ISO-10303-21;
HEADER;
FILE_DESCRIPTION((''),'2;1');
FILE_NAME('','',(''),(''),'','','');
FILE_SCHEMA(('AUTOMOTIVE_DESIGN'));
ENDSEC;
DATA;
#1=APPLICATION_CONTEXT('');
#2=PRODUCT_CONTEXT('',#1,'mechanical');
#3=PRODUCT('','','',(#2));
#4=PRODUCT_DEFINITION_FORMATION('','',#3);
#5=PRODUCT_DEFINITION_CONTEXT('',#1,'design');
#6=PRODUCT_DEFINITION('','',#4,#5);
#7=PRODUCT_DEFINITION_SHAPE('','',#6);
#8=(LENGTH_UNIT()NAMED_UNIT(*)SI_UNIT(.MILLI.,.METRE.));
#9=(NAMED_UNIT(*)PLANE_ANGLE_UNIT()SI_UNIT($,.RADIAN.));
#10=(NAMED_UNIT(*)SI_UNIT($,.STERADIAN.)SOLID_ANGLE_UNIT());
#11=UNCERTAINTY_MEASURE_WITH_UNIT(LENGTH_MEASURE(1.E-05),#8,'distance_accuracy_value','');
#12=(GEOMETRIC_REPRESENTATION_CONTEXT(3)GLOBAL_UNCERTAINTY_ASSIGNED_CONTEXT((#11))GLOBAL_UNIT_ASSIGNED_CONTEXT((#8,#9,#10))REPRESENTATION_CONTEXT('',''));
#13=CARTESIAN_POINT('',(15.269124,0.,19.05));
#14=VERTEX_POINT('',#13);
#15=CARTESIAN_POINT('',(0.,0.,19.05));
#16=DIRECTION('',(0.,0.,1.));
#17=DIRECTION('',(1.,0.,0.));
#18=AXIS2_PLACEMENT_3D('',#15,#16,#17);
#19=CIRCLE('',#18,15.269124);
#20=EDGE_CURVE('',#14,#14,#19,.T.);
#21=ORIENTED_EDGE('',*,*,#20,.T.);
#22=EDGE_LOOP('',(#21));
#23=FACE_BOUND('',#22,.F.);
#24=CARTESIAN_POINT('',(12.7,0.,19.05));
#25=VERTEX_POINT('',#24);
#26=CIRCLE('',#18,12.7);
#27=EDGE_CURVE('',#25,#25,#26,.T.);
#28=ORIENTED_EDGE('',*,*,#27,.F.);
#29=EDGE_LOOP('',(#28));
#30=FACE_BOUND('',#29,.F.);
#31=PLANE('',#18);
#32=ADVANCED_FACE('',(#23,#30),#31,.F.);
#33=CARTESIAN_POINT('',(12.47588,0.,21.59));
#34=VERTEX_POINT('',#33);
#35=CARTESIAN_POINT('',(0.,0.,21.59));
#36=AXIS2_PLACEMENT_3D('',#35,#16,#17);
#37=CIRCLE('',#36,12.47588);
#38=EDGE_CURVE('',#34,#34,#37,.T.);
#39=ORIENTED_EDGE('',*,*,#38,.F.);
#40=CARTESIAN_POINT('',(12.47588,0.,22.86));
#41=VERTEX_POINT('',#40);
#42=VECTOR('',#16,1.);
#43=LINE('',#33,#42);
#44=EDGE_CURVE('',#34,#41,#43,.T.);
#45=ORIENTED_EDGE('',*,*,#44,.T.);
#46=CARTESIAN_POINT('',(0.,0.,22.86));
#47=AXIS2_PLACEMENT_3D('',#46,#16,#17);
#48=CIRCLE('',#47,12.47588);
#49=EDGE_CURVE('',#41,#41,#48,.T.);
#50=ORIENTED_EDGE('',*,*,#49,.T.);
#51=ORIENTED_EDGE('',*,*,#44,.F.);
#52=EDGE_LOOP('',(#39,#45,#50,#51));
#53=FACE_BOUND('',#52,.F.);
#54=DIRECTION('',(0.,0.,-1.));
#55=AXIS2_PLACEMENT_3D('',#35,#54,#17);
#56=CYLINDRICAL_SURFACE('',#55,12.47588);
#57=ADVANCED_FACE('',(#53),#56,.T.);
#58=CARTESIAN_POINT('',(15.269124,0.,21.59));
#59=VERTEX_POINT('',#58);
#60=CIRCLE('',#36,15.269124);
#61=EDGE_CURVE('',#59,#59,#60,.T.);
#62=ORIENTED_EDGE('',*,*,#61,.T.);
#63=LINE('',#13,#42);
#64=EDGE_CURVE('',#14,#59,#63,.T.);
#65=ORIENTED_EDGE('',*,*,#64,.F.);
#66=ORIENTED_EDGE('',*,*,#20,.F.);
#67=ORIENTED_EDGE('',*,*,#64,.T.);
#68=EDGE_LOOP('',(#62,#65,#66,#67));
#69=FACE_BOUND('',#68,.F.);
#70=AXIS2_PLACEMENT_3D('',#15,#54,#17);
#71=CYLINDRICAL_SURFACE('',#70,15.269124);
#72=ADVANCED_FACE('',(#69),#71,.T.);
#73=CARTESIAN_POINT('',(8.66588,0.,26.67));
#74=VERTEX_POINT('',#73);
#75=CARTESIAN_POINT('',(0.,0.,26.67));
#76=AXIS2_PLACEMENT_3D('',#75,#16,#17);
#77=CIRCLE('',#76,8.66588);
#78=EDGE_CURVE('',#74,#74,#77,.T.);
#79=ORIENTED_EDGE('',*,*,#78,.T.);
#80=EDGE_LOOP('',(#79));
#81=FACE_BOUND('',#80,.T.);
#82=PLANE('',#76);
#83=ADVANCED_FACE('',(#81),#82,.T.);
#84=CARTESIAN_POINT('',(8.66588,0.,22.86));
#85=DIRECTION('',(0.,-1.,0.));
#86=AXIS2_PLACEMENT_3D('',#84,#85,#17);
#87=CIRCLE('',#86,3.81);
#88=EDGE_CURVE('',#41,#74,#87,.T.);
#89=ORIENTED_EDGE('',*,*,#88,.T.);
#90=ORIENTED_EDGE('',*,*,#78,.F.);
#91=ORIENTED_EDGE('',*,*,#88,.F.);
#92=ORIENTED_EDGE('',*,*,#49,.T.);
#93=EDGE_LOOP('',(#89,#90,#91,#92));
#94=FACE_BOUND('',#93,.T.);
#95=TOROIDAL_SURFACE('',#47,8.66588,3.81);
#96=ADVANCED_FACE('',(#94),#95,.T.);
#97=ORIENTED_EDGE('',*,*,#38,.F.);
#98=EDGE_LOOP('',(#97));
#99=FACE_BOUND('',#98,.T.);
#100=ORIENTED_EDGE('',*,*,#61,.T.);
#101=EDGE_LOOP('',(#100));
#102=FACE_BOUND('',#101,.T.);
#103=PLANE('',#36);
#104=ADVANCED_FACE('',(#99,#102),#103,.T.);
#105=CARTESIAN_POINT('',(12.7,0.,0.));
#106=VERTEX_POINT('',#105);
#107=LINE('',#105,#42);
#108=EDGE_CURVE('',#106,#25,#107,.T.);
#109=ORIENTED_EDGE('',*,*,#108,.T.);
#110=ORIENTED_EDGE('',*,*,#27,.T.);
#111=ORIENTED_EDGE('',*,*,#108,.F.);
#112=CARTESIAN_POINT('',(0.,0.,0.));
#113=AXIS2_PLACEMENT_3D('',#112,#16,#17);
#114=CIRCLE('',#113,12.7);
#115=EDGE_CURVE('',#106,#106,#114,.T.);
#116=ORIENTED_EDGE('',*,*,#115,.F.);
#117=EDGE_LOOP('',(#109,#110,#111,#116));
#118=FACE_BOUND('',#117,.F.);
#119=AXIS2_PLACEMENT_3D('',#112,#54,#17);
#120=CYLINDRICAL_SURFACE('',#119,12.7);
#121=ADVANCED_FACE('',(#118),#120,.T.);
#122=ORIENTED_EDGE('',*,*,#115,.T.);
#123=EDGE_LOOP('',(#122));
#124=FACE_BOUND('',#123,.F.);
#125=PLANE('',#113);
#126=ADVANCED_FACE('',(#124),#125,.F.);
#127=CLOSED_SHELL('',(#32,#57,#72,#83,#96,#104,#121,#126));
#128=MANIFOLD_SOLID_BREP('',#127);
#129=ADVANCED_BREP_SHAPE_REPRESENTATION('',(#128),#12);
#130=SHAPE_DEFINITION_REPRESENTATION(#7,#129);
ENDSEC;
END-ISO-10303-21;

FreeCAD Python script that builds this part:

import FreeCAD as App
import Part
import Sketcher
Q = App.Units.Quantity


def edges_at(feature, points):
    """Names of the edges that pass closest to the given points."""
    edges = feature.Shape.Edges
    near = lambda p: min(range(len(edges)), key=lambda i: edges[i].distToShape(Part.Vertex(*p))[0])
    return sorted({f"Edge{near(p) + 1}" for p in points})

doc = App.newDocument("Part")
params = doc.addObject("Spreadsheet::Sheet", "Params")
for row, (alias, value) in enumerate([
    ("sketch1_diameter", "1 in"),
    ("pad1_length", "0.75 in"),
    ("pad2_length", "0.1 in"),
    ("pad3_length", "0.2 in"),
    ("fillet_radius", "0.15 in"),
], start=1):
    params.set(f"A{row}", alias)
    params.set(f"B{row}", "=" + value)
    params.setAlias(f"B{row}", alias)

body = doc.addObject("PartDesign::Body", "Body")

# Sketch on XY plane
sketch1 = body.newObject("Sketcher::SketchObject", "Sketch")
sketch1.AttachmentSupport = (doc.getObject("XY_Plane"), [""])
sketch1.MapMode = "FlatFace"
sketch1.addGeometry(Part.Circle(App.Vector(0, 0, 0), App.Vector(0, 0, 1), 13), False)
sketch1.addConstraint([
    Sketcher.Constraint("Coincident", 0, 3, -1, 1),
    Sketcher.Constraint("Diameter", 0, Q("1 in")),
])
sketch1.setExpression("Constraints[1]", "Params.sketch1_diameter")
pad1 = body.newObject("PartDesign::Pad", "Pad")
pad1.Profile = sketch1
pad1.setExpression("Length", "Params.pad1_length")

# Sketch on XY plane
sketch2 = body.newObject("Sketcher::SketchObject", "Sketch001")
sketch2.AttachmentSupport = (doc.getObject("XY_Plane"), [""])
sketch2.MapMode = "FlatFace"
sketch2.AttachmentOffset = App.Placement(App.Vector(0, 0, 0.75 * 25.4), App.Rotation())
sketch2.addGeometry(Part.Circle(App.Vector(0, 0, 0), App.Vector(0, 0, 1), 15), False)
sketch2.addConstraint([
    Sketcher.Constraint("Coincident", 0, 3, -1, 1),
    Sketcher.Constraint("Diameter", 0, 30.538249),
])
pad2 = body.newObject("PartDesign::Pad", "Pad001")
pad2.Profile = sketch2
pad2.setExpression("Length", "Params.pad2_length")

# Sketch on XY plane
sketch3 = body.newObject("Sketcher::SketchObject", "Sketch002")
sketch3.AttachmentSupport = (doc.getObject("XY_Plane"), [""])
sketch3.MapMode = "FlatFace"
sketch3.AttachmentOffset = App.Placement(App.Vector(0, 0, 0.85 * 25.4), App.Rotation())
sketch3.addGeometry(Part.Circle(App.Vector(0, 0, 0), App.Vector(0, 0, 1), 12), False)
sketch3.addConstraint([
    Sketcher.Constraint("Coincident", 0, 3, -1, 1),
    Sketcher.Constraint("Diameter", 0, 24.951761),
])
pad3 = body.newObject("PartDesign::Pad", "Pad002")
pad3.Profile = sketch3
pad3.setExpression("Length", "Params.pad3_length")
doc.recompute()

fillet = body.newObject("PartDesign::Fillet", "Fillet")
fillet.Base = (pad3, edges_at(pad3, [(-12.476, 0, 26.67)]))
fillet.setExpression("Radius", "Params.fillet_radius")

doc.recompute()
